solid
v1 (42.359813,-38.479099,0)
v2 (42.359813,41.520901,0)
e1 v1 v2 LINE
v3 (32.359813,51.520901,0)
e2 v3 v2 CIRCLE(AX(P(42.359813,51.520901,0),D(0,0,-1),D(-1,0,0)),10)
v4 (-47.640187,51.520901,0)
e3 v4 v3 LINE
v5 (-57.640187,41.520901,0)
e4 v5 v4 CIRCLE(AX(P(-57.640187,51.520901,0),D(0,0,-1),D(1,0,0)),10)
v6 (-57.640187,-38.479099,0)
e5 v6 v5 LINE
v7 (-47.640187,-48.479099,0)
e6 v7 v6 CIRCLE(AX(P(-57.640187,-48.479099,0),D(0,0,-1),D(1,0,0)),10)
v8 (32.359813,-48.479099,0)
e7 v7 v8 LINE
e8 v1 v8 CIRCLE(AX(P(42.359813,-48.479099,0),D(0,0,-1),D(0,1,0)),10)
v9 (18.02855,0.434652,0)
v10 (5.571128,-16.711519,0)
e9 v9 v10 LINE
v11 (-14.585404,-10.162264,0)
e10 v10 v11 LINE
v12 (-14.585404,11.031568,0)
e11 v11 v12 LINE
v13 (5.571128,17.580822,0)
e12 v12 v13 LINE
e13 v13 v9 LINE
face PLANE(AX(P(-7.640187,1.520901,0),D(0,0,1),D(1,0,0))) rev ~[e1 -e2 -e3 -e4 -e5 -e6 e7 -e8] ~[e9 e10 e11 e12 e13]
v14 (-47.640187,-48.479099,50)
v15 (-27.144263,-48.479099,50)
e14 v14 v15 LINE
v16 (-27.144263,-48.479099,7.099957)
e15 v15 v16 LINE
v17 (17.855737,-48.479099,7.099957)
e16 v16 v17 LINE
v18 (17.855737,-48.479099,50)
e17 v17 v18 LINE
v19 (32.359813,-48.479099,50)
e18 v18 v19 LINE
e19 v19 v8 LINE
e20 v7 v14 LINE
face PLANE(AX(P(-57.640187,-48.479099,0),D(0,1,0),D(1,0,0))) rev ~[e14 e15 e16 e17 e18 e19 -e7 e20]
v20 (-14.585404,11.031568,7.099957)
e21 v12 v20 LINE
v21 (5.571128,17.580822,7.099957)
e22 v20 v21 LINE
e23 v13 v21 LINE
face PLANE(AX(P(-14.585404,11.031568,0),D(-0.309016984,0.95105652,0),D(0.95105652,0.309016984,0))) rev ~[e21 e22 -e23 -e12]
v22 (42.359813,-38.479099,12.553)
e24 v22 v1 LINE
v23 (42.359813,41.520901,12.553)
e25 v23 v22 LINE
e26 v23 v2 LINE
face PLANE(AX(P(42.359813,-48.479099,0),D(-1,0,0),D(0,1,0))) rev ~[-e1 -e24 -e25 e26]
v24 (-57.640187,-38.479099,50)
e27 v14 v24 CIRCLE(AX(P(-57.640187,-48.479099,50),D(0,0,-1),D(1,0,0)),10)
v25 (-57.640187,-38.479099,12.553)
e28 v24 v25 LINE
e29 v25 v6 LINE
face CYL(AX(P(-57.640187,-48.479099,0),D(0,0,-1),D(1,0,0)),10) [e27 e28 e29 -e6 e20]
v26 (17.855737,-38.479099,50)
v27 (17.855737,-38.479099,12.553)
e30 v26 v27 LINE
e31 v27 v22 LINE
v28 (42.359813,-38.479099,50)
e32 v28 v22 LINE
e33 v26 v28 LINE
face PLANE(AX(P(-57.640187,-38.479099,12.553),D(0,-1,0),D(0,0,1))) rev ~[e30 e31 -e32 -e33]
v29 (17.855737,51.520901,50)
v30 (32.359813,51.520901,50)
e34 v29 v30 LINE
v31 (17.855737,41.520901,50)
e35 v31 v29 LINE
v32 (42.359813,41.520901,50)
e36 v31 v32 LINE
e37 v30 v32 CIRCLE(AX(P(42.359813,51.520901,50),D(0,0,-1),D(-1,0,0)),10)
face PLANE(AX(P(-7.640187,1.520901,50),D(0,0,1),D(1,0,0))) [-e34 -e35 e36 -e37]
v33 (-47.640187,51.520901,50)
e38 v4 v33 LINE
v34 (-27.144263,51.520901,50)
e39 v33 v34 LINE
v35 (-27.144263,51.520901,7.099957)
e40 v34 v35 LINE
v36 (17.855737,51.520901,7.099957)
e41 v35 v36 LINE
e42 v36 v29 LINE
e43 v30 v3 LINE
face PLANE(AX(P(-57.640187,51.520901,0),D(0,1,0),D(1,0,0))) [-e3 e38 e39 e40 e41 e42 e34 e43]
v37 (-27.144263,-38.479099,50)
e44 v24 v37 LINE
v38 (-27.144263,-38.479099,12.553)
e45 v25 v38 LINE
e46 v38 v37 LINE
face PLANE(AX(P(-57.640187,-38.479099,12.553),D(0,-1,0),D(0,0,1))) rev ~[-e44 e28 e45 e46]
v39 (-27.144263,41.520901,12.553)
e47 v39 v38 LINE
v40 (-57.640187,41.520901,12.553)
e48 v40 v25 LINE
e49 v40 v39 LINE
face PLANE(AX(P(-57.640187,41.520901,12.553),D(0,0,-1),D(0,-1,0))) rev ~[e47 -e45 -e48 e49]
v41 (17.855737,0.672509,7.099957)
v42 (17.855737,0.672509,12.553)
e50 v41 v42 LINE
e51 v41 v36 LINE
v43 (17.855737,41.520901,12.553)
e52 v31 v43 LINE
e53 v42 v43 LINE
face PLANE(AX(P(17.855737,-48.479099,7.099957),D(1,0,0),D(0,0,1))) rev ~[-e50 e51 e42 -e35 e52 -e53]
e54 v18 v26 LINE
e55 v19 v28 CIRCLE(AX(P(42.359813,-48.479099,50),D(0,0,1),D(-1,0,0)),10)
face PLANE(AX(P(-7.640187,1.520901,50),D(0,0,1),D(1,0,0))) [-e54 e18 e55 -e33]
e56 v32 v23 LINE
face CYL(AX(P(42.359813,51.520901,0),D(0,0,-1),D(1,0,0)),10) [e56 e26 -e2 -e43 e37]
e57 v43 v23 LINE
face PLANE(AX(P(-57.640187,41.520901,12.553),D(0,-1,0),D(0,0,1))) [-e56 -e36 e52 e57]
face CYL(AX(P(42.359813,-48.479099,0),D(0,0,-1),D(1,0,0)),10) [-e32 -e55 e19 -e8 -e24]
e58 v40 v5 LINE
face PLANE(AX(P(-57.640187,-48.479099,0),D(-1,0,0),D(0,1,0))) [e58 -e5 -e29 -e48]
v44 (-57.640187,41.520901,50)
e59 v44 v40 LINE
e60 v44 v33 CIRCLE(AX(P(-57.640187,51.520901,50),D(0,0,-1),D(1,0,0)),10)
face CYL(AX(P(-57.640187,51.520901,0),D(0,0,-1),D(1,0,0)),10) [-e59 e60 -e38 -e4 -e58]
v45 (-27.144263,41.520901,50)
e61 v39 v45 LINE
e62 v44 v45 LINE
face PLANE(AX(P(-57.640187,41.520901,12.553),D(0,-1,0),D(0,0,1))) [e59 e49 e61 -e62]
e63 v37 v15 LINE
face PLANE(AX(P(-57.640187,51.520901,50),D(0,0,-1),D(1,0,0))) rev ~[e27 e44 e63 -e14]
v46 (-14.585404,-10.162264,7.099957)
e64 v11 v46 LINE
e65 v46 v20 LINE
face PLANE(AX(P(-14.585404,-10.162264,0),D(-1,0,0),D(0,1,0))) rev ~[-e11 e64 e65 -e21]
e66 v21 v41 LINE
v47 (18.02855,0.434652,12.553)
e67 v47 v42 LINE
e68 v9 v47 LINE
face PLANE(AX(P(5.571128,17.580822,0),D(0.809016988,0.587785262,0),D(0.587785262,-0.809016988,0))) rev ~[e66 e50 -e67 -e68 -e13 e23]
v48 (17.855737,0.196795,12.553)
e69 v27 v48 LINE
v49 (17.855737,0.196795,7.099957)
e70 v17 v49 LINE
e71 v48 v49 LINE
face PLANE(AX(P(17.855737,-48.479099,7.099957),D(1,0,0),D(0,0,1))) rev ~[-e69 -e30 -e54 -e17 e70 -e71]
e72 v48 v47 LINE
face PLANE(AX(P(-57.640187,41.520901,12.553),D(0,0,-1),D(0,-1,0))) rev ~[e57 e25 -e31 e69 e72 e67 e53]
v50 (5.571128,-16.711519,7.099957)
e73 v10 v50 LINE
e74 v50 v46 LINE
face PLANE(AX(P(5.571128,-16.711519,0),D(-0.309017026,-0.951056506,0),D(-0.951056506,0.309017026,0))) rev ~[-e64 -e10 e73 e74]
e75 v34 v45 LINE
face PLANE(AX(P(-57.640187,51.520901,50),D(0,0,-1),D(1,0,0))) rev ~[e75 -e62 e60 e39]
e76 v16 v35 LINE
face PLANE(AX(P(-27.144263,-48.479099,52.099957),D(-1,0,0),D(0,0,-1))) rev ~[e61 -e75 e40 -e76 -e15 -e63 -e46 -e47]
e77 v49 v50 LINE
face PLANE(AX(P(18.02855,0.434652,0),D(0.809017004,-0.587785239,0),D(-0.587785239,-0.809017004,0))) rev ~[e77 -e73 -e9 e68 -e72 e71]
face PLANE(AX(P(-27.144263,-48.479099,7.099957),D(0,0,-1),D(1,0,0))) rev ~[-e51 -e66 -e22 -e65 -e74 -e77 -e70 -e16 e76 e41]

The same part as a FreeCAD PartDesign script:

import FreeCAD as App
import Part
import Sketcher

V = App.Vector
Q = App.Units.Quantity


def add_polygon(sketch, points):
    """Adds a closed chain of lines whose ends are joined by coincident constraints."""
    first, n = sketch.GeometryCount, len(points)
    for a, b in zip(points, points[1:] + points[:1]):
        sketch.addGeometry(Part.LineSegment(App.Vector(*a, 0), App.Vector(*b, 0)), False)
    for i in range(n):
        sketch.addConstraint(Sketcher.Constraint("Coincident", first + i, 2, first + (i + 1) % n, 1))

doc = App.newDocument("Part")
params = doc.addObject("Spreadsheet::Sheet", "Params")
for row, (alias, value) in enumerate([
    ("sketch1_width", "100 mm"),
    ("pad1_length", "50 mm"),
    ("sketch2_width", "45 mm"),
    ("pocket1_length", "100 mm"),
    ("sketch3_diameter", "20 mm"),
    ("pad2_length", "50 mm"),
    ("pocket2_length", "25 mm"),
    ("sketch5_width", "80 mm"),
    ("pocket3_length", "150 mm"),
], start=1):
    params.set(f"A{row}", alias)
    params.set(f"B{row}", "=" + value)
    params.setAlias(f"B{row}", alias)

body = doc.addObject("PartDesign::Body", "Body")

sketch1 = body.newObject("Sketcher::SketchObject", "Sketch")
sketch1.AttachmentSupport = (doc.getObject("XY_Plane"), [""])
sketch1.MapMode = "FlatFace"
add_polygon(sketch1, [(-57.640187, 51.520901), (-57.640187, -48.479099), (42.359813, -48.479099), (42.359813, 51.520901)])
sketch1.addConstraint([
    Sketcher.Constraint("Vertical", 0),
    Sketcher.Constraint("Horizontal", 1),
    Sketcher.Constraint("Vertical", 2),
    Sketcher.Constraint("Horizontal", 3),
    Sketcher.Constraint("Equal", 3, 0),
    Sketcher.Constraint("DistanceX", 1, 1, 1, 2, 100.0),
    Sketcher.Constraint("DistanceY", 0, 2, -1, 1, 48.479099),
    Sketcher.Constraint("DistanceX", 0, 2, -1, 1, 57.640187),
])
sketch1.setExpression("Constraints[9]", "Params.sketch1_width")
pad1 = body.newObject("PartDesign::Pad", "Pad")
pad1.Profile = sketch1
pad1.setExpression("Length", "Params.pad1_length")

sketch2 = body.newObject("Sketcher::SketchObject", "Sketch001")
sketch2.AttachmentSupport = (doc.getObject("XZ_Plane"), [""])
sketch2.MapMode = "FlatFace"
sketch2.AttachmentOffset = App.Placement(V(0, 0, 48.479099), App.Rotation())
add_polygon(sketch2, [(-27.144263, 52.099957), (-27.144263, 7.099957), (17.855737, 7.099957), (17.855737, 52.099957)])
sketch2.addConstraint([
    Sketcher.Constraint("Vertical", 0),
    Sketcher.Constraint("Horizontal", 1),
    Sketcher.Constraint("Vertical", 2),
    Sketcher.Constraint("Horizontal", 3),
    Sketcher.Constraint("Equal", 3, 0),
    Sketcher.Constraint("DistanceX", 1, 1, 1, 2, 45.0),
    Sketcher.Constraint("DistanceX", 0, 2, -1, 1, 27.144263),
    Sketcher.Constraint("DistanceY", -1, 1, 0, 2, 7.099957),
])
sketch2.setExpression("Constraints[9]", "Params.sketch2_width")
pocket1 = body.newObject("PartDesign::Pocket", "Pocket")
pocket1.Profile = sketch2
pocket1.setExpression("Length", "Params.pocket1_length")

sketch3 = body.newObject("Sketcher::SketchObject", "Sketch002")
sketch3.AttachmentSupport = (doc.getObject("XY_Plane"), [""])
sketch3.MapMode = "FlatFace"
sketch3.addGeometry([
    Part.Circle(V(-57.640187, 51.520901, 0), V(0, 0, 1), 10),
    Part.Circle(V(-57.640187, -48.479099, 0), V(0, 0, 1), 10),
    Part.Circle(V(42.359813, -48.479099, 0), V(0, 0, 1), 10),
    Part.Circle(V(42.359813, 51.520901, 0), V(0, 0, 1), 10),
], False)
sketch3.addConstraint([
    Sketcher.Constraint("Equal", 0, 1),
    Sketcher.Constraint("Equal", 1, 2),
    Sketcher.Constraint("Equal", 2, 3),
    Sketcher.Constraint("Horizontal", 1, 3, 2, 3),
    Sketcher.Constraint("Horizontal", 0, 3, 3, 3),
    Sketcher.Constraint("Vertical", 0, 3, 1, 3),
    Sketcher.Constraint("Vertical", 2, 3, 3, 3),
    Sketcher.Constraint("Diameter", 0, 20.0),
    Sketcher.Constraint("DistanceY", 1, 3, 0, 3, 100.0),
    Sketcher.Constraint("DistanceX", 1, 3, 2, 3, 100.0),
    Sketcher.Constraint("DistanceY", -1, 1, 0, 3, 51.520901),
    Sketcher.Constraint("DistanceX", 0, 3, -1, 1, 57.640187),
])
sketch3.setExpression("Constraints[7]", "Params.sketch3_diameter")
pad2 = body.newObject("PartDesign::Pad", "Pad001")
pad2.Profile = sketch3
pad2.setExpression("Length", "Params.pad2_length")

sketch4 = body.newObject("Sketcher::SketchObject", "Sketch003")
sketch4.AttachmentSupport = (doc.getObject("XY_Plane"), [""])
sketch4.MapMode = "FlatFace"
add_polygon(sketch4, [(-14.585404, -10.162264), (-14.585404, 11.031568), (5.571128, 17.580822), (18.02855, 0.434652), (5.571128, -16.711519)])
sketch4.addConstraint([
    Sketcher.Constraint("Vertical", 0),
    Sketcher.Constraint("Vertical", 1, 2, 3, 2),
    Sketcher.Constraint("Equal", 1, 2),
    Sketcher.Constraint("Equal", 2, 3),
    Sketcher.Constraint("Equal", 3, 4),
    Sketcher.Constraint("Angle", 1, Q("17.999999 deg")),
    Sketcher.Constraint("Angle", 2, Q("-53.999999 deg")),
    Sketcher.Constraint("Distance", 1, 21.193832),
    Sketcher.Constraint("DistanceX", -1, 1, 2, 2, 18.02855),
    Sketcher.Constraint("DistanceY", 3, 2, -1, 1, 16.711519),
])
pocket2 = body.newObject("PartDesign::Pocket", "Pocket001")
pocket2.Profile = sketch4
pocket2.setExpression("Length", "Params.pocket2_length")
pocket2.Reversed = True

sketch5 = body.newObject("Sketcher::SketchObject", "Sketch004")
sketch5.AttachmentSupport = (doc.getObject("YZ_Plane"), [""])
sketch5.MapMode = "FlatFace"
sketch5.AttachmentOffset = App.Placement(V(0, 0, -57.640187), App.Rotation())
add_polygon(sketch5, [(41.520901, 50), (41.520901, 12.553), (-38.479099, 12.553), (-38.479099, 50)])
sketch5.addConstraint([
    Sketcher.Constraint("Vertical", 0),
    Sketcher.Constraint("Horizontal", 1),
    Sketcher.Constraint("Vertical", 2),
    Sketcher.Constraint("Horizontal", 3),
    Sketcher.Constraint("DistanceX", 1, 2, 1, 1, 80.0),
    Sketcher.Constraint("DistanceY", -1, 1, 2, 2, 50.0),
    Sketcher.Constraint("DistanceY", 0, 2, 0, 1, 37.447),
    Sketcher.Constraint("DistanceX", -1, 1, 0, 2, 41.520901),
])
sketch5.setExpression("Constraints[8]", "Params.sketch5_width")
pocket3 = body.newObject("PartDesign::Pocket", "Pocket002")
pocket3.Profile = sketch5
pocket3.setExpression("Length", "Params.pocket3_length")
pocket3.Reversed = True

doc.recompute()
